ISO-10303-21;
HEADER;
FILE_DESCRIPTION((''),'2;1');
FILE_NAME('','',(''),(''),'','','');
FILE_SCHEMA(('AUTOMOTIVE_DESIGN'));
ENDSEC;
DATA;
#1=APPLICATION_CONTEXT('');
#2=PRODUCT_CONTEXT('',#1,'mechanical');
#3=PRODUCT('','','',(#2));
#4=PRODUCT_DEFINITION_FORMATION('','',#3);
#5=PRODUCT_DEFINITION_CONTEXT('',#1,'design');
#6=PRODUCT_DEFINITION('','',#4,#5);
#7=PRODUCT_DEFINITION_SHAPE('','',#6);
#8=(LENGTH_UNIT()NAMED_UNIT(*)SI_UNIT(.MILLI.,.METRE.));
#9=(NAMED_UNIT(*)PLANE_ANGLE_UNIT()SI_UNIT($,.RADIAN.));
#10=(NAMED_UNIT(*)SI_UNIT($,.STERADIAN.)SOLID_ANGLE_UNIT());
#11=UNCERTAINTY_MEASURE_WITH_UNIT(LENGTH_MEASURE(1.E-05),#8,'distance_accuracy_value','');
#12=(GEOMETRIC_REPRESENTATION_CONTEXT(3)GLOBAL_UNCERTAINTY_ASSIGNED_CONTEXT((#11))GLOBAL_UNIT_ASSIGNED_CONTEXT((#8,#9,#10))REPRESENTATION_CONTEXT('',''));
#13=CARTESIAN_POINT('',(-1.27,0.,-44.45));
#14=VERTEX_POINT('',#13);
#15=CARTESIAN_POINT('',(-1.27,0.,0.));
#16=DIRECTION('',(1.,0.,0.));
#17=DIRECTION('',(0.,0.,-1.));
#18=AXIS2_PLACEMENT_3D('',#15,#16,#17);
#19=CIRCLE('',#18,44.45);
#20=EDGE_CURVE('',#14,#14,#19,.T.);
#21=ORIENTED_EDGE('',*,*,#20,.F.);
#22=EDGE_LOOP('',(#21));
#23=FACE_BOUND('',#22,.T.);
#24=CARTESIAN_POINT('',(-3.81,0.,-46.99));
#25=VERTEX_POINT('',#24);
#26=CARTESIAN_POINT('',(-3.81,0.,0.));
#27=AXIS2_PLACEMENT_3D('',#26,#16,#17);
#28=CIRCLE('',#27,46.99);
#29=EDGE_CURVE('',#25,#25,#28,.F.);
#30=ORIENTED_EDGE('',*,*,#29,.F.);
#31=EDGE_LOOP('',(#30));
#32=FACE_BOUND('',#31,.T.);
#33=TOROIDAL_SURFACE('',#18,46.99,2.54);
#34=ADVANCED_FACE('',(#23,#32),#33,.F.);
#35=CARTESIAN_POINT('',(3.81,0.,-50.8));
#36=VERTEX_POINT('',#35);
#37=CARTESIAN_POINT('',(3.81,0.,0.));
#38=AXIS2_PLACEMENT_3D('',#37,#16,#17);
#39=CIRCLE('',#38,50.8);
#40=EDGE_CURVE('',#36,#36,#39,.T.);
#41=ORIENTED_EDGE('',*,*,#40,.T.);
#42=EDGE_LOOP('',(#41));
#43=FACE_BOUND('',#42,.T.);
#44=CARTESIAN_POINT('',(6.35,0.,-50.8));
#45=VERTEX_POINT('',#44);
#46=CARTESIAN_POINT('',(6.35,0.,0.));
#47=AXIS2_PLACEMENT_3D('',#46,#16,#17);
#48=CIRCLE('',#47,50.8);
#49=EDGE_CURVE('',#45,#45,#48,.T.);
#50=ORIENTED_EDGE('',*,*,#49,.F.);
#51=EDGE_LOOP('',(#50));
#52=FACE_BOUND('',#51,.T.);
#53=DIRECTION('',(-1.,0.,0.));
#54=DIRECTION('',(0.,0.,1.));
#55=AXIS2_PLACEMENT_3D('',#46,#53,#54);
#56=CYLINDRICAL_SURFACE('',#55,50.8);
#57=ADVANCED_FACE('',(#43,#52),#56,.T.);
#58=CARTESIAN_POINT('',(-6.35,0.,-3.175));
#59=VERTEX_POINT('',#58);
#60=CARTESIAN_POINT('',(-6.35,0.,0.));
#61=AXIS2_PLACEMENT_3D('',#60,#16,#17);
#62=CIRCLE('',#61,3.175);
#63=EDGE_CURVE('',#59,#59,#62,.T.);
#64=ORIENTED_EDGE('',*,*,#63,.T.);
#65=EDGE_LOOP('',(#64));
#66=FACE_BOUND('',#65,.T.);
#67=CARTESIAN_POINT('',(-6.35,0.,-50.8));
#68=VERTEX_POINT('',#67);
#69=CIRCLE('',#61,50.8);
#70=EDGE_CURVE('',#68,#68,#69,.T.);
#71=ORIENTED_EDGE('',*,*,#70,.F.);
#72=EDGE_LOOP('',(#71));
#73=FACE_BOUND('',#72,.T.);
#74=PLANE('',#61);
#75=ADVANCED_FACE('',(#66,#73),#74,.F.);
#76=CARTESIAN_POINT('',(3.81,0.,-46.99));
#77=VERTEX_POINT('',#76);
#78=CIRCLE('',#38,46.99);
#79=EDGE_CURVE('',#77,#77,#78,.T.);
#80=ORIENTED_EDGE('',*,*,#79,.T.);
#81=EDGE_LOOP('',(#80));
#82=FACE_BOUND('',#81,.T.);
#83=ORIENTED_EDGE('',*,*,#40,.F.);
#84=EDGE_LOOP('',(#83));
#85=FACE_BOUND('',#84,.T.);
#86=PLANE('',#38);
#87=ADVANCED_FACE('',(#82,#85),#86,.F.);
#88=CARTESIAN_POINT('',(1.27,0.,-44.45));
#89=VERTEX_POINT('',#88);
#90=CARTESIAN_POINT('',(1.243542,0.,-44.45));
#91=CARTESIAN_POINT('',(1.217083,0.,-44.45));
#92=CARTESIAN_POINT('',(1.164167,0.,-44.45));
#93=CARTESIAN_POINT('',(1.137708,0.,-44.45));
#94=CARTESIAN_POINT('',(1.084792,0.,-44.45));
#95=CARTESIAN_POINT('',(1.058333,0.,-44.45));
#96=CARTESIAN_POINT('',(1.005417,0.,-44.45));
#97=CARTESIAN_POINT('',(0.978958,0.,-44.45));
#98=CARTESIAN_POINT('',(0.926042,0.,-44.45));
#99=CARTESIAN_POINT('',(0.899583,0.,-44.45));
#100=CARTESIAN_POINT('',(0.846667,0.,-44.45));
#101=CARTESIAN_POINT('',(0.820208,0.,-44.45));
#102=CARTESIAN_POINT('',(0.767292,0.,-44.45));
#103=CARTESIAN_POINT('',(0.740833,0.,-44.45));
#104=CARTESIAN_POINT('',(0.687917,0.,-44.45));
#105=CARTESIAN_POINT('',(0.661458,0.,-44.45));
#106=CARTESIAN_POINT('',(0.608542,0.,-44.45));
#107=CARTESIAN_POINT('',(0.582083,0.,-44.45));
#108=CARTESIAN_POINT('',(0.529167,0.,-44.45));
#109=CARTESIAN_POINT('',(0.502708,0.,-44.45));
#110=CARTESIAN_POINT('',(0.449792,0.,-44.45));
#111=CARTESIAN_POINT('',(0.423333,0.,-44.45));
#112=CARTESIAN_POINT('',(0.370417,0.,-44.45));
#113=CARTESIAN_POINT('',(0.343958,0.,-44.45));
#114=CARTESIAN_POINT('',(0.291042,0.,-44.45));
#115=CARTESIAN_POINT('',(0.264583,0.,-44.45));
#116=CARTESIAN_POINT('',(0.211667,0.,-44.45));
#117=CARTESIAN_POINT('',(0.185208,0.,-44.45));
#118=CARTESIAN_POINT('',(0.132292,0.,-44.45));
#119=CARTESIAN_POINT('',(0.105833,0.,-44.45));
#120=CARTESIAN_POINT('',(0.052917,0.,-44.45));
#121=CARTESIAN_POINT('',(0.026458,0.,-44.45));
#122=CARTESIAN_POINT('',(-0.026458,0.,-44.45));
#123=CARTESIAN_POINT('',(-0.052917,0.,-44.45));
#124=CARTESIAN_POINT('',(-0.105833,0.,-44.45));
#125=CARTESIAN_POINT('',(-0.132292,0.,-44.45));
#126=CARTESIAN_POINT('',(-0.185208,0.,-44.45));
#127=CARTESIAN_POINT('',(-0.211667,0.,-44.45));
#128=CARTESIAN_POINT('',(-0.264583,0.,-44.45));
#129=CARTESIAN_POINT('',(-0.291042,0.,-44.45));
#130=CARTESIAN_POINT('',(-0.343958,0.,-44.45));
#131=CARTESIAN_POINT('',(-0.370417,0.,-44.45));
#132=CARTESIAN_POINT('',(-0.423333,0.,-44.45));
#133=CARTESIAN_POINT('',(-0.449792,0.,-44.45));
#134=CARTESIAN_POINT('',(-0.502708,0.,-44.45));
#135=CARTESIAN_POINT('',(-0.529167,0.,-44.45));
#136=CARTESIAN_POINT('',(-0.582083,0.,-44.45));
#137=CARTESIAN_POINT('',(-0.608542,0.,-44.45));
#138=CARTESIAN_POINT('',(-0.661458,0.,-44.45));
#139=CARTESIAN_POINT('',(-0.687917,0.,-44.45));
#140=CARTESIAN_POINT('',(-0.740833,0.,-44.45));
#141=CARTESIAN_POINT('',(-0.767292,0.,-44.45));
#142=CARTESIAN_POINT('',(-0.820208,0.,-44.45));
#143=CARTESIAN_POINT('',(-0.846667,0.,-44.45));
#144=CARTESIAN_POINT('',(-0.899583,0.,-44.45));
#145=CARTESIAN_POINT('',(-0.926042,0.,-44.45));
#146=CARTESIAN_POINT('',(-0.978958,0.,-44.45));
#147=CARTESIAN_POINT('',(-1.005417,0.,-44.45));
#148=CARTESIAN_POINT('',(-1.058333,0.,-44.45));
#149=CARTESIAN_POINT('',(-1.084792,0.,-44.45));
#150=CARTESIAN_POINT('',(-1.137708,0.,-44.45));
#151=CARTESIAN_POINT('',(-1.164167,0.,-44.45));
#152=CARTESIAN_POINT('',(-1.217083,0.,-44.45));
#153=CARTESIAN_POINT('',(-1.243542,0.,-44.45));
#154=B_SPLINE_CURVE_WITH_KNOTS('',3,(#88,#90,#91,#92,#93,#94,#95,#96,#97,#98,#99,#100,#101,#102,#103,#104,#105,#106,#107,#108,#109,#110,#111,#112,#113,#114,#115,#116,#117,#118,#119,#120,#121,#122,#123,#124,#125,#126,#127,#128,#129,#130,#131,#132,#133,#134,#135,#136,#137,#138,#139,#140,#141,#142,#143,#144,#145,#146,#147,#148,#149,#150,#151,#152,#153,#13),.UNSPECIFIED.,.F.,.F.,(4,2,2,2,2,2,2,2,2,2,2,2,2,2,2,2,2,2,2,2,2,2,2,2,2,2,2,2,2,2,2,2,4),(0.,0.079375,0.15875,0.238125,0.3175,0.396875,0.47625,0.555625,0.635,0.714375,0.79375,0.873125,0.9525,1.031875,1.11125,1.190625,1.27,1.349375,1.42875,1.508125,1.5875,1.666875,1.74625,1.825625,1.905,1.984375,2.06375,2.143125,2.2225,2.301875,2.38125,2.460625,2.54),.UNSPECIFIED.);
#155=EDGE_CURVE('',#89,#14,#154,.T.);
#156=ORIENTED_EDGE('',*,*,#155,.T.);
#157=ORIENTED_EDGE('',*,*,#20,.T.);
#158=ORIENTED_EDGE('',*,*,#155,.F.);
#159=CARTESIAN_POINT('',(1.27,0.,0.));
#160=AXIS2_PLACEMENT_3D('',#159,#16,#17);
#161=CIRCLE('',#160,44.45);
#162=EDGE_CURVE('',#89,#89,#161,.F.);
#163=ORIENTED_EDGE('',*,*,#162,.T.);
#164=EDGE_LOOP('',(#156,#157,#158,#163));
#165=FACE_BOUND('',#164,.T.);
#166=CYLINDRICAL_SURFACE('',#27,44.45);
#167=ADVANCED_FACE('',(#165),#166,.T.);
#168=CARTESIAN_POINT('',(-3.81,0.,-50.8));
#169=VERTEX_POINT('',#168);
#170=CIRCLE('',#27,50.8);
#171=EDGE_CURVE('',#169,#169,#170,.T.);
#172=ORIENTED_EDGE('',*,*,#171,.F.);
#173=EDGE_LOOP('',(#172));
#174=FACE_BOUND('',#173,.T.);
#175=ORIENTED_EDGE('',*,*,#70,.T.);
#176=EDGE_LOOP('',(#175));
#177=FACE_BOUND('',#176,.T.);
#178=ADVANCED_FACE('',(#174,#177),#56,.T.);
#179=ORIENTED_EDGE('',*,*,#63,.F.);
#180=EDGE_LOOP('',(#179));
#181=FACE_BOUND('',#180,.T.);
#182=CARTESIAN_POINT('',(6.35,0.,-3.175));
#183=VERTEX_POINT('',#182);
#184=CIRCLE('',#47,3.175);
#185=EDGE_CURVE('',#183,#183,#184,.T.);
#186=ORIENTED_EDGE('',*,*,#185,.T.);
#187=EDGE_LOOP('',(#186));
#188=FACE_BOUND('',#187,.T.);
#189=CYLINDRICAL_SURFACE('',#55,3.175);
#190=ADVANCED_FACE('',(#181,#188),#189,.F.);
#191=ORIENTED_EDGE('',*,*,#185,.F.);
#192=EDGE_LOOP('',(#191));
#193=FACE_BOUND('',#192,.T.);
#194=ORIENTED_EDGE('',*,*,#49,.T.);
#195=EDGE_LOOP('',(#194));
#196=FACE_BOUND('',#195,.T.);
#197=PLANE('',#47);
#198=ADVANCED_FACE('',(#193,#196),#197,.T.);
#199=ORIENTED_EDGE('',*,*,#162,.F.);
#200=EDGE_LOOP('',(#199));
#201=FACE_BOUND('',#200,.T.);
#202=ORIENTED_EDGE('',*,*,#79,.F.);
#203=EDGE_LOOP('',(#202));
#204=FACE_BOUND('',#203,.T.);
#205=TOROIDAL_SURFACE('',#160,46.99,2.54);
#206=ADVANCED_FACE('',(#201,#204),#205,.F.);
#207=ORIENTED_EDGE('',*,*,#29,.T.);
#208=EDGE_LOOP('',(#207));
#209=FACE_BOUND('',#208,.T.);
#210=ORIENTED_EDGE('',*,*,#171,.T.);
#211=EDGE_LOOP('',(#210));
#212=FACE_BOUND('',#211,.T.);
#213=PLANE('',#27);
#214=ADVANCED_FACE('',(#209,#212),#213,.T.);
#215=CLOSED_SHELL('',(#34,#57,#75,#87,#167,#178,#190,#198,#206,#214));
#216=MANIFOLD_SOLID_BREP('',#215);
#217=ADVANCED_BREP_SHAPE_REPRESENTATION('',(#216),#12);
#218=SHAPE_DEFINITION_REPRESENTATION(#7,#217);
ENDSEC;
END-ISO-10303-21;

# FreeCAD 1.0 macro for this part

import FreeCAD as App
import Part
import Sketcher
from FreeCAD import Vector
Q = App.Units.Quantity


def edges_at(feature, points):
    """Names of the edges that pass closest to the given points."""
    edges = feature.Shape.Edges
    near = lambda p: min(range(len(edges)), key=lambda i: edges[i].distToShape(Part.Vertex(*p))[0])
    return sorted({f"Edge{near(p) + 1}" for p in points})

doc = App.newDocument("Part")
body = doc.addObject("PartDesign::Body", "Body")

# Sketch on YZ plane
sketch1 = body.newObject("Sketcher::SketchObject", "Sketch")
sketch1.AttachmentSupport = (doc.getObject("YZ_Plane"), [""])
sketch1.MapMode = "FlatFace"
sketch1.addGeometry(Part.Circle(Vector(0, 0, 0), Vector(0, 0, 1), 50.8), False)
sketch1.addGeometry(Part.Circle(Vector(0, 0, 0), Vector(0, 0, 1), 3.2), False)
sketch1.addConstraint(Sketcher.Constraint("Coincident", 0, 3, -1, 1))
sketch1.addConstraint(Sketcher.Constraint("Coincident", 1, 3, -1, 1))
sketch1.addConstraint(Sketcher.Constraint("Diameter", 0, Q("4 in")))
sketch1.addConstraint(Sketcher.Constraint("Diameter", 1, Q("0.25 in")))
pad1 = body.newObject("PartDesign::Pad", "Pad")
pad1.Profile = sketch1
pad1.Length = Q("0.5 in")
pad1.Midplane = True

# Sketch on YZ plane
sketch2 = body.newObject("Sketcher::SketchObject", "Sketch001")
sketch2.AttachmentSupport = (doc.getObject("YZ_Plane"), [""])
sketch2.MapMode = "FlatFace"
sketch2.addGeometry(Part.Circle(Vector(0, 0, 0), Vector(0, 0, 1), 51), False)
sketch2.addGeometry(Part.Circle(Vector(0, 0, 0), Vector(0, 0, 1), 44), False)
sketch2.addConstraint(Sketcher.Constraint("Coincident", 0, 3, -1, 1))
sketch2.addConstraint(Sketcher.Constraint("Coincident", 1, 3, -1, 1))
sketch2.addConstraint(Sketcher.Constraint("Diameter", 0, Q("4 in")))
sketch2.addConstraint(Sketcher.Constraint("Diameter", 1, Q("3.5 in")))
pocket1 = body.newObject("PartDesign::Pocket", "Pocket")
pocket1.Profile = sketch2
pocket1.Length = Q("0.3 in")
pocket1.Midplane = True
doc.recompute()

fillet = body.newObject("PartDesign::Fillet", "Fillet")
fillet.Base = (pocket1, edges_at(pocket1, [(-3.81, 0, 44.45), (3.81, 0, 44.45)]))
fillet.Radius = Q("0.1 in")

doc.recompute()
